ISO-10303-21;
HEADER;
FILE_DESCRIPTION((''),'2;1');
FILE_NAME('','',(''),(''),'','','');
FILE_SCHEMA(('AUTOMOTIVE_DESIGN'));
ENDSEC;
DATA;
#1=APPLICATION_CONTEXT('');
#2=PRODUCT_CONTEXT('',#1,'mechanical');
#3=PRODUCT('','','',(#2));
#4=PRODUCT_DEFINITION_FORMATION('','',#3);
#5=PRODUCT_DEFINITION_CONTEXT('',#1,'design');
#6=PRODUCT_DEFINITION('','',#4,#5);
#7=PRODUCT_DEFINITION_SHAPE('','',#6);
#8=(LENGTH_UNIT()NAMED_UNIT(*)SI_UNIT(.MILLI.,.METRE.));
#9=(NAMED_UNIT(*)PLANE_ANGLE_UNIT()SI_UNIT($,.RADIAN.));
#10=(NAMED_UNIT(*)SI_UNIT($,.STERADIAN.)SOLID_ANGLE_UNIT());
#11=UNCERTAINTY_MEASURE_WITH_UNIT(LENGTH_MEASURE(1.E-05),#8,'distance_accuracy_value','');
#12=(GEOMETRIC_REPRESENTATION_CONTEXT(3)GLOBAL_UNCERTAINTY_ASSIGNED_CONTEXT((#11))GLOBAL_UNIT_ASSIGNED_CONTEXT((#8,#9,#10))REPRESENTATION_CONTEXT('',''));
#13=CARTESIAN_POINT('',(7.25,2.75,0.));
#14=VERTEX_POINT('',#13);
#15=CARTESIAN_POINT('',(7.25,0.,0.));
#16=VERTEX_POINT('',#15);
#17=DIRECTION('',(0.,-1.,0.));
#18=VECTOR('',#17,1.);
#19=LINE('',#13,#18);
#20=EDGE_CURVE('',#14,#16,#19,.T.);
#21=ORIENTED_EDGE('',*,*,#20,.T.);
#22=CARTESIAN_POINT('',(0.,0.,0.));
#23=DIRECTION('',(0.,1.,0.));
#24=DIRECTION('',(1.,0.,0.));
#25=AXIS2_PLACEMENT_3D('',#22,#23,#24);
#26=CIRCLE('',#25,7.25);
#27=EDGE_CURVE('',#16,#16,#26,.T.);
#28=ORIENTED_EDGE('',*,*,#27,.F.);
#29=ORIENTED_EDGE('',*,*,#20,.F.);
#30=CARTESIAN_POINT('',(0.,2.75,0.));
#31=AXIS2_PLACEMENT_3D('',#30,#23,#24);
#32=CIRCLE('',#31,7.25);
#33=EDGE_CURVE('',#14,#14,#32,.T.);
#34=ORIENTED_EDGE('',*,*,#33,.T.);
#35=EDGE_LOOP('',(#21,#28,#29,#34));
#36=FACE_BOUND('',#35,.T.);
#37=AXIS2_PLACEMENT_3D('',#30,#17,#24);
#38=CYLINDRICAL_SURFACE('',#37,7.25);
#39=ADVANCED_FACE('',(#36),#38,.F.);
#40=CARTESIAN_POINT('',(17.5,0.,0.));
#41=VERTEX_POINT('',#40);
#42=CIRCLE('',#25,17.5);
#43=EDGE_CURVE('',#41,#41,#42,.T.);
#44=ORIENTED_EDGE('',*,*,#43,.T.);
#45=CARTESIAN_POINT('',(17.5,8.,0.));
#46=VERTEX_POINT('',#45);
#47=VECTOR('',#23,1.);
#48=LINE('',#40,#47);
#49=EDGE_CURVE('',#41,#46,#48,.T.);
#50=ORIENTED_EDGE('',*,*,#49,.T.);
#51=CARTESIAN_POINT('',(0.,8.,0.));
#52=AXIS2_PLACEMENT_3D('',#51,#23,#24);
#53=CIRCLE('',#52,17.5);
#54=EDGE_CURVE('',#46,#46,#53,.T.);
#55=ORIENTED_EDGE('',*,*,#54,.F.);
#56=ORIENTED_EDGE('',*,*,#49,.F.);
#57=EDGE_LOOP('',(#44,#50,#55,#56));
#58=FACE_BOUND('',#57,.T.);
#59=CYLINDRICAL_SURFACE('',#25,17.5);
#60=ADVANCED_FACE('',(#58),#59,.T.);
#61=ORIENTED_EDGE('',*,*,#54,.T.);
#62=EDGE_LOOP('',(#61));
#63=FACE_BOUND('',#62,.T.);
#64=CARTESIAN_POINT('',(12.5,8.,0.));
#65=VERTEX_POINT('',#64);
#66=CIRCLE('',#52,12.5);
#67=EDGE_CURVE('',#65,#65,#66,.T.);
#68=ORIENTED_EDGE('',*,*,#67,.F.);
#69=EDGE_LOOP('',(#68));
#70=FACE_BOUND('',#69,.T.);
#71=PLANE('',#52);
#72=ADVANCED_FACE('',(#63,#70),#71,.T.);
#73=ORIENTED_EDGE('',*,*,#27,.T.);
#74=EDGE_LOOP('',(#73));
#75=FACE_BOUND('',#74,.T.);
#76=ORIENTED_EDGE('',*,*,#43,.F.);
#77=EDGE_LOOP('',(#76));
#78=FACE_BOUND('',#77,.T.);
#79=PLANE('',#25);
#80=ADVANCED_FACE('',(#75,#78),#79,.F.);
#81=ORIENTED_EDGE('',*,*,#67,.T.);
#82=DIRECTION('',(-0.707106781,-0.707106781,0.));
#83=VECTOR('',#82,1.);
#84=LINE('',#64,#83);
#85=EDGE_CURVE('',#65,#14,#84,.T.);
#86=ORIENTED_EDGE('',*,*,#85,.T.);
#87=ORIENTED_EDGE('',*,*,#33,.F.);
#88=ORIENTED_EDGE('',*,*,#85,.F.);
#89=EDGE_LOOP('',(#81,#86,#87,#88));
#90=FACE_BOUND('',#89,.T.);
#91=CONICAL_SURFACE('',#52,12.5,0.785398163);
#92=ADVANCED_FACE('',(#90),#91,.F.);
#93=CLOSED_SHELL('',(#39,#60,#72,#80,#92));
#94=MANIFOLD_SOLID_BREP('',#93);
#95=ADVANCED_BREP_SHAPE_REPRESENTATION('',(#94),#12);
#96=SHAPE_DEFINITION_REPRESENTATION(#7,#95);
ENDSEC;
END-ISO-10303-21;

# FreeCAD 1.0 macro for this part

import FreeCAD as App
import Part
import Sketcher
from FreeCAD import Vector
Q = App.Units.Quantity

doc = App.newDocument("Part")
body = doc.addObject("PartDesign::Body", "Body")

sketch1 = body.newObject("Sketcher::SketchObject", "Sketch")
sketch1.AttachmentSupport = (doc.getObject("XY_Plane"), [""])
sketch1.MapMode = "FlatFace"
sketch1.addGeometry([
    Part.LineSegment(Vector(7.2, 0, 0), Vector(17.5, 0, 0)),
    Part.LineSegment(Vector(17.5, 0, 0), Vector(17.5, 8, 0)),
    Part.LineSegment(Vector(17.5, 8, 0), Vector(12.5, 8, 0)),
    Part.LineSegment(Vector(12.5, 8, 0), Vector(7.2, 2.8, 0)),
    Part.LineSegment(Vector(7.2, 2.8, 0), Vector(7.2, 0, 0)),
], False)
sketch1.addConstraint([
    Sketcher.Constraint("Coincident", 0, 2, 1, 1),
    Sketcher.Constraint("Coincident", 1, 2, 2, 1),
    Sketcher.Constraint("Coincident", 2, 2, 3, 1),
    Sketcher.Constraint("Coincident", 3, 2, 4, 1),
    Sketcher.Constraint("Coincident", 4, 2, 0, 1),
    Sketcher.Constraint("Horizontal", 0),
    Sketcher.Constraint("Vertical", 1),
    Sketcher.Constraint("Horizontal", 2),
    Sketcher.Constraint("Vertical", 4),
    Sketcher.Constraint("PointOnObject", 0, 2, -1),
    Sketcher.Constraint("DistanceX", 2, 2, 2, 1, 5.0),
    Sketcher.Constraint("DistanceY", 1, 1, 1, 2, 8.0),
    Sketcher.Constraint("Angle", 3, Q("-135 deg")),
    Sketcher.Constraint("DistanceX", 0, 1, 0, 2, 10.25),
    Sketcher.Constraint("DistanceX", -1, 1, 0, 2, 17.5),
])
revolution = body.newObject("PartDesign::Revolution", "Revolution")
revolution.Profile = sketch1
revolution.ReferenceAxis = (sketch1, ["V_Axis"])
revolution.Angle = 360

doc.recompute()
